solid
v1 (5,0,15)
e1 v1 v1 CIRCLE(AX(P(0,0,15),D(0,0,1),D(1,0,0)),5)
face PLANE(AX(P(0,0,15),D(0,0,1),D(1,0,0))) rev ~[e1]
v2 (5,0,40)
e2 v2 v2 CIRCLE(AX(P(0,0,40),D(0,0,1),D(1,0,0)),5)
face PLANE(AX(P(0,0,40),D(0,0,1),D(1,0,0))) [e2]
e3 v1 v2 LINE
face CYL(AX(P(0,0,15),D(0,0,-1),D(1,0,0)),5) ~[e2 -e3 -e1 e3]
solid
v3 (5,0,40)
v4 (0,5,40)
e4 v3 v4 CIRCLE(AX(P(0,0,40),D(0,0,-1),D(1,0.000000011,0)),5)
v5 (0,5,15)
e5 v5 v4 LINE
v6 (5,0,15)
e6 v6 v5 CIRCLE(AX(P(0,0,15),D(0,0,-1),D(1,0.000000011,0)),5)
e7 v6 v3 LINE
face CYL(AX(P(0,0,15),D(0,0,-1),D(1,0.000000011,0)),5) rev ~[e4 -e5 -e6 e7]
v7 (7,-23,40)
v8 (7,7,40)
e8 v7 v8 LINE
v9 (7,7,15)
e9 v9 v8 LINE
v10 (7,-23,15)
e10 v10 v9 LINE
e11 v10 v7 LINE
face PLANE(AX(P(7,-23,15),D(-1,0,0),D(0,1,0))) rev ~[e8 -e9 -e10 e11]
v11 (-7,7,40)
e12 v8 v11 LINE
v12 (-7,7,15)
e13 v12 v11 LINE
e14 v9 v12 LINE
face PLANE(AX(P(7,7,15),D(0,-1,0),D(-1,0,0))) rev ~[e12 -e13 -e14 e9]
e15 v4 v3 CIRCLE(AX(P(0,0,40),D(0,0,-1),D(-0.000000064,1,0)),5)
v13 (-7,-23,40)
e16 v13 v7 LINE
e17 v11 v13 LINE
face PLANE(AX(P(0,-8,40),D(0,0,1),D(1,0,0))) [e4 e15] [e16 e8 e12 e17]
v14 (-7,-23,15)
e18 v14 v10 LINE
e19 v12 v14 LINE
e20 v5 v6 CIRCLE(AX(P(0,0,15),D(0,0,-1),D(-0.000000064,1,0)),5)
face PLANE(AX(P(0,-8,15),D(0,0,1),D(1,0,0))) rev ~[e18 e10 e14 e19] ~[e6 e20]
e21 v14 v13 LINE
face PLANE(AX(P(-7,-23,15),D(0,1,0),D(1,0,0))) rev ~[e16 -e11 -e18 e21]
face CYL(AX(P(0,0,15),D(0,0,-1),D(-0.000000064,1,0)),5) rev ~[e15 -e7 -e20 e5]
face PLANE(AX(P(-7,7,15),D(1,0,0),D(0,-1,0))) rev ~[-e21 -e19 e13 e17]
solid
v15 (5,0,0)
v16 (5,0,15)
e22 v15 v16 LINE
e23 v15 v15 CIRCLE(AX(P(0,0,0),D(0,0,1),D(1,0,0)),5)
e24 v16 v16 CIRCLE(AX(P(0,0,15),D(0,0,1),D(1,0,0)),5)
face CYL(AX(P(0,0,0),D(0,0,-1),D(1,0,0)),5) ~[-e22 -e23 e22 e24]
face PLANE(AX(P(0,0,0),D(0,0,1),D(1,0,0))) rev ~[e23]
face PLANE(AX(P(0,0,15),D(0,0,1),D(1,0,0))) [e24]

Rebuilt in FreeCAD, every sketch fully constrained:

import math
import FreeCAD as App
import Part
import Sketcher

doc = App.newDocument("Part")
params = doc.addObject("Spreadsheet::Sheet", "Params")
for row, (alias, value) in enumerate([
    ("sketch1_diameter", "10 mm"),
    ("pad1_length", "15 mm"),
    ("sketch2_radius", "5 mm"),
    ("sketch2_width", "14 mm"),
    ("sketch2_height", "30 mm"),
    ("pad2_length", "25 mm"),
    ("sketch3_diameter", "10 mm"),
    ("pad3_length", "25 mm"),
], start=1):
    params.set(f"A{row}", alias)
    params.set(f"B{row}", "=" + value)
    params.setAlias(f"B{row}", alias)

body = doc.addObject("PartDesign::Body", "Body")

sketch1 = doc.addObject("Sketcher::SketchObject", "Sketch")
body.addObject(sketch1)
sketch1.AttachmentSupport = (doc.XY_Plane, [""])
sketch1.MapMode = "FlatFace"
sketch1.addGeometry(Part.Circle(App.Vector(0, 0, 0), App.Vector(0, 0, 1), 5), False)
sketch1.addConstraint(Sketcher.Constraint("Coincident", 0, 3, -1, 1))
sketch1.addConstraint(Sketcher.Constraint("Diameter", 0, 10.0))
sketch1.setExpression("Constraints[1]", "Params.sketch1_diameter")
pad1 = doc.addObject("PartDesign::Pad", "Pad")
body.addObject(pad1)
pad1.Profile = sketch1
pad1.setExpression("Length", "Params.pad1_length")
body2 = doc.addObject("PartDesign::Body", "Body001")

sketch2 = doc.addObject("Sketcher::SketchObject", "Sketch001")
body2.addObject(sketch2)
sketch2.AttachmentSupport = (doc.getObject("XY_Plane001"), [""])
sketch2.MapMode = "FlatFace"
sketch2.AttachmentOffset = App.Placement(App.Vector(0, 0, 15), App.Rotation())
sketch2.addGeometry(Part.LineSegment(App.Vector(7, 7, 0), App.Vector(-7, 7, 0)), False)
sketch2.addGeometry(Part.LineSegment(App.Vector(-7, 7, 0), App.Vector(-7, -23, 0)), False)
sketch2.addGeometry(Part.LineSegment(App.Vector(-7, -23, 0), App.Vector(7, -23, 0)), False)
sketch2.addGeometry(Part.LineSegment(App.Vector(7, -23, 0), App.Vector(7, 7, 0)), False)
sketch2.addGeometry(Part.ArcOfCircle(Part.Circle(App.Vector(0, 0, 0), App.Vector(0, 0, 1), 5), math.radians(0), math.radians(90)), False)
sketch2.addGeometry(Part.ArcOfCircle(Part.Circle(App.Vector(0, 0, 0), App.Vector(0, 0, 1), 5), math.radians(90), math.radians(360)), False)
sketch2.addConstraint(Sketcher.Constraint("Coincident", 0, 2, 1, 1))
sketch2.addConstraint(Sketcher.Constraint("Coincident", 1, 2, 2, 1))
sketch2.addConstraint(Sketcher.Constraint("Coincident", 2, 2, 3, 1))
sketch2.addConstraint(Sketcher.Constraint("Coincident", 3, 2, 0, 1))
sketch2.addConstraint(Sketcher.Constraint("Tangent", 4, 1, 5, 2))
sketch2.addConstraint(Sketcher.Constraint("Coincident", 5, 1, 4, 2))
sketch2.addConstraint(Sketcher.Constraint("Horizontal", 0))
sketch2.addConstraint(Sketcher.Constraint("Vertical", 1))
sketch2.addConstraint(Sketcher.Constraint("Horizontal", 2))
sketch2.addConstraint(Sketcher.Constraint("Vertical", 3))
sketch2.addConstraint(Sketcher.Constraint("Coincident", 4, 3, -1, 1))
sketch2.addConstraint(Sketcher.Constraint("PointOnObject", 4, 1, -1))
sketch2.addConstraint(Sketcher.Constraint("PointOnObject", 5, 1, -2))
sketch2.addConstraint(Sketcher.Constraint("Radius", 4, 5.0))
sketch2.addConstraint(Sketcher.Constraint("DistanceX", 0, 2, 0, 1, 14.0))
sketch2.addConstraint(Sketcher.Constraint("DistanceY", 1, 2, 1, 1, 30.0))
sketch2.addConstraint(Sketcher.Constraint("DistanceX", 0, 2, -1, 1, 7.0))
sketch2.addConstraint(Sketcher.Constraint("DistanceY", -1, 1, 0, 2, 7.0))
sketch2.setExpression("Constraints[13]", "Params.sketch2_radius")
sketch2.setExpression("Constraints[14]", "Params.sketch2_width")
sketch2.setExpression("Constraints[15]", "Params.sketch2_height")
pad2 = doc.addObject("PartDesign::Pad", "Pad001")
body2.addObject(pad2)
pad2.Profile = sketch2
pad2.setExpression("Length", "Params.pad2_length")
body3 = doc.addObject("PartDesign::Body", "Body002")

sketch3 = doc.addObject("Sketcher::SketchObject", "Sketch002")
body3.addObject(sketch3)
sketch3.AttachmentSupport = (doc.getObject("XY_Plane002"), [""])
sketch3.MapMode = "FlatFace"
sketch3.AttachmentOffset = App.Placement(App.Vector(0, 0, 15), App.Rotation())
sketch3.addGeometry(Part.Circle(App.Vector(0, 0, 0), App.Vector(0, 0, 1), 5), False)
sketch3.addConstraint(Sketcher.Constraint("Coincident", 0, 3, -1, 1))
sketch3.addConstraint(Sketcher.Constraint("Diameter", 0, 10.0))
sketch3.setExpression("Constraints[1]", "Params.sketch3_diameter")
pad3 = doc.addObject("PartDesign::Pad", "Pad002")
body3.addObject(pad3)
pad3.Profile = sketch3
pad3.setExpression("Length", "Params.pad3_length")

doc.recompute()
